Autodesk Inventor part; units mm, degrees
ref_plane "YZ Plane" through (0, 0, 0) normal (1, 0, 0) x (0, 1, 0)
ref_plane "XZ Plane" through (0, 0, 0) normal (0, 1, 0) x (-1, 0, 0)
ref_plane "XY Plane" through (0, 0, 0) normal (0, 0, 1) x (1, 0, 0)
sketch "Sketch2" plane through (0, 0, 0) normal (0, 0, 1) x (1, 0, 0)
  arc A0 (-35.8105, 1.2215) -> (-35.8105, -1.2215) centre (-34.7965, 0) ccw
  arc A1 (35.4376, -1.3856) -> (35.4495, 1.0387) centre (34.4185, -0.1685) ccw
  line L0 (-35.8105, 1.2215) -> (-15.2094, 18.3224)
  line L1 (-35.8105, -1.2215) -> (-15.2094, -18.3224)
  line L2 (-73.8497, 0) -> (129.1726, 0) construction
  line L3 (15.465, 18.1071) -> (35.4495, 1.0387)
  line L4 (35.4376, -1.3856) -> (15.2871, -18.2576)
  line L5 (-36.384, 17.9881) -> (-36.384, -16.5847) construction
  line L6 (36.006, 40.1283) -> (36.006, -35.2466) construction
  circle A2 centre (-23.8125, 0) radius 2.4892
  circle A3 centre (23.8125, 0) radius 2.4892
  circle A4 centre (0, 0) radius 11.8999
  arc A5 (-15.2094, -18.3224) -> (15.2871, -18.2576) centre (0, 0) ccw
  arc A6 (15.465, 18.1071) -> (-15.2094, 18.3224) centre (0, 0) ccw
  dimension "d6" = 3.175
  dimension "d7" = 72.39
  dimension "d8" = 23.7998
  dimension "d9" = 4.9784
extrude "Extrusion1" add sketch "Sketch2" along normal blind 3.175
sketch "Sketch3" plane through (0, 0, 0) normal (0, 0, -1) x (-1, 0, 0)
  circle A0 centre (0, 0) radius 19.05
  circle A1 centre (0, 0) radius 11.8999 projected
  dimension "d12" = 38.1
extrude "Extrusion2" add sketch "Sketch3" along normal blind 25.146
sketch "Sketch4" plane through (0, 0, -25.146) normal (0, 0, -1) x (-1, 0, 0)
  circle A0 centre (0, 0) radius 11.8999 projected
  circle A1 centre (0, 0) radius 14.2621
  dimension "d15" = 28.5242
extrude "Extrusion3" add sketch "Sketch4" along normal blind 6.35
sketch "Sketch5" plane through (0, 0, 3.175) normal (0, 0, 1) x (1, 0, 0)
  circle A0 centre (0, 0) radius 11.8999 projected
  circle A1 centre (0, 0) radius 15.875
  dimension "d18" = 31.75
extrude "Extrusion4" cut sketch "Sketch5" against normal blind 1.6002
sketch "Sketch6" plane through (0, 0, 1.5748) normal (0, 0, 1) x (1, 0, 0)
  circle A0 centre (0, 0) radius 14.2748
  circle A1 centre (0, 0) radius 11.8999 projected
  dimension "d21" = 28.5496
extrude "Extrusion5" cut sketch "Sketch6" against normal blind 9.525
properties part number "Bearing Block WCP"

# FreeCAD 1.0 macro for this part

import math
import FreeCAD as App
import Part
import Sketcher

V = App.Vector
Q = App.Units.Quantity

doc = App.newDocument("Part")
body = doc.addObject("PartDesign::Body", "Body")

# Sketch on XY plane
sketch1 = body.newObject("Sketcher::SketchObject", "Sketch")
sketch1.AttachmentSupport = (doc.getObject("XY_Plane"), [""])
sketch1.MapMode = "FlatFace"
sketch1.addGeometry([
    Part.LineSegment(V(-15.2, 18.3, 0), V(-35.8, 1.2, 0)),  # 0
    Part.ArcOfCircle(Part.Circle(V(-34.8, 0, 0), V(0, 0, 1), 1.6), math.radians(130), math.radians(230)),  # 1
    Part.LineSegment(V(-35.8, -1.2, 0), V(-15.2, -18.3, 0)),  # 2
    Part.ArcOfCircle(Part.Circle(V(0, 0, 0), V(0, 0, 1), 23.8), math.radians(-130), math.radians(-50)),  # 3
    Part.LineSegment(V(15.3, -18.3, 0), V(35.4, -1.4, 0)),  # 4
    Part.ArcOfCircle(Part.Circle(V(34.4, -0.2, 0), V(0, 0, 1), 1.6), math.radians(-50), math.radians(50)),  # 5
    Part.LineSegment(V(35.4, 1, 0), V(15.5, 18.1, 0)),  # 6
    Part.ArcOfCircle(Part.Circle(V(0, 0, 0), V(0, 0, 1), 23.8), math.radians(49), math.radians(130)),  # 7
    Part.Circle(V(-23.8, 0, 0), V(0, 0, 1), 2.5),  # 8
    Part.Circle(V(0, 0, 0), V(0, 0, 1), 11.9),  # 9
    Part.Circle(V(23.8, 0, 0), V(0, 0, 1), 2.5),  # 10
], False)
sketch1.addConstraint([
    Sketcher.Constraint("Tangent", 0, 2, 1, 1),
    Sketcher.Constraint("Tangent", 1, 2, 2, 1),
    Sketcher.Constraint("Tangent", 2, 2, 3, 1),
    Sketcher.Constraint("Tangent", 3, 2, 4, 1),
    Sketcher.Constraint("Tangent", 4, 2, 5, 1),
    Sketcher.Constraint("Tangent", 5, 2, 6, 1),
    Sketcher.Constraint("Tangent", 6, 2, 7, 1),
    Sketcher.Constraint("Tangent", 7, 2, 0, 1),
    Sketcher.Constraint("Coincident", 3, 3, -1, 1),
    Sketcher.Constraint("Coincident", 7, 3, -1, 1),
    Sketcher.Constraint("Coincident", 9, 3, -1, 1),
    Sketcher.Constraint("Equal", 1, 5),
    Sketcher.Constraint("Equal", 3, 7),
    Sketcher.Constraint("Equal", 8, 10),
    Sketcher.Constraint("Symmetric", 8, 3, 10, 3, -1, 1),
    Sketcher.Constraint("PointOnObject", 1, 3, -1),
    Sketcher.Constraint("PointOnObject", 8, 3, -1),
    Sketcher.Constraint("Diameter", 8, Q("0.196 in")),
    Sketcher.Constraint("Diameter", 9, Q("0.937 in")),
    Sketcher.Constraint("Radius", 1, Q("0.0625 in")),
    Sketcher.Constraint("Radius", 3, Q("0.9375 in")),
    Sketcher.Constraint("Angle", 6, Q("139.5 deg")),
    Sketcher.Constraint("Angle", 4, Q("39.9394 deg")),
    Sketcher.Constraint("DistanceX", 8, 3, -1, 1, Q("0.9375 in")),
    Sketcher.Constraint("DistanceX", 1, 3, 5, 3, Q("2.725 in")),
])
pad1 = body.newObject("PartDesign::Pad", "Pad")
pad1.Profile = sketch1
pad1.Length = Q("0.125 in")

# Sketch on XY plane
sketch2 = body.newObject("Sketcher::SketchObject", "Sketch001")
sketch2.AttachmentSupport = (doc.getObject("XY_Plane"), [""])
sketch2.MapMode = "FlatFace"
sketch2.addGeometry([
    Part.Circle(V(0, 0, 0), V(0, 0, 1), 19),
    Part.Circle(V(0, 0, 0), V(0, 0, 1), 12),
], False)
sketch2.addConstraint([
    Sketcher.Constraint("Coincident", 0, 3, -1, 1),
    Sketcher.Constraint("Coincident", 1, 3, -1, 1),
    Sketcher.Constraint("Diameter", 0, Q("1.5 in")),
    Sketcher.Constraint("Diameter", 1, Q("0.937 in")),
])
pad2 = body.newObject("PartDesign::Pad", "Pad001")
pad2.Profile = sketch2
pad2.Length = Q("0.99 in")
pad2.Reversed = True

# Sketch on XY plane
sketch3 = body.newObject("Sketcher::SketchObject", "Sketch002")
sketch3.AttachmentSupport = (doc.getObject("XY_Plane"), [""])
sketch3.MapMode = "FlatFace"
sketch3.AttachmentOffset = App.Placement(V(0, 0, -0.99 * 25.4), App.Rotation())
sketch3.addGeometry([
    Part.Circle(V(0, 0, 0), V(0, 0, 1), 14),
    Part.Circle(V(0, 0, 0), V(0, 0, 1), 12),
], False)
sketch3.addConstraint([
    Sketcher.Constraint("Coincident", 0, 3, -1, 1),
    Sketcher.Constraint("Coincident", 1, 3, -1, 1),
    Sketcher.Constraint("Diameter", 0, Q("1.123 in")),
    Sketcher.Constraint("Diameter", 1, Q("0.937 in")),
])
pad3 = body.newObject("PartDesign::Pad", "Pad002")
pad3.Profile = sketch3
pad3.Length = Q("0.25 in")
pad3.Reversed = True

# Sketch on XY plane
sketch4 = body.newObject("Sketcher::SketchObject", "Sketch003")
sketch4.AttachmentSupport = (doc.getObject("XY_Plane"), [""])
sketch4.MapMode = "FlatFace"
sketch4.AttachmentOffset = App.Placement(V(0, 0, 0.125 * 25.4), App.Rotation())
sketch4.addGeometry([
    Part.Circle(V(0, 0, 0), V(0, 0, 1), 16),
    Part.Circle(V(0, 0, 0), V(0, 0, 1), 12),
], False)
sketch4.addConstraint([
    Sketcher.Constraint("Coincident", 0, 3, -1, 1),
    Sketcher.Constraint("Coincident", 1, 3, -1, 1),
    Sketcher.Constraint("Diameter", 0, Q("1.25 in")),
    Sketcher.Constraint("Diameter", 1, Q("0.937 in")),
])
pocket1 = body.newObject("PartDesign::Pocket", "Pocket")
pocket1.Profile = sketch4
pocket1.Length = Q("0.063 in")

# Sketch on XY plane
sketch5 = body.newObject("Sketcher::SketchObject", "Sketch004")
sketch5.AttachmentSupport = (doc.getObject("XY_Plane"), [""])
sketch5.MapMode = "FlatFace"
sketch5.AttachmentOffset = App.Placement(V(0, 0, 0.062 * 25.4), App.Rotation())
sketch5.addGeometry([
    Part.Circle(V(0, 0, 0), V(0, 0, 1), 14),
    Part.Circle(V(0, 0, 0), V(0, 0, 1), 12),
], False)
sketch5.addConstraint([
    Sketcher.Constraint("Coincident", 0, 3, -1, 1),
    Sketcher.Constraint("Coincident", 1, 3, -1, 1),
    Sketcher.Constraint("Diameter", 0, Q("1.124 in")),
    Sketcher.Constraint("Diameter", 1, Q("0.937 in")),
])
pocket2 = body.newObject("PartDesign::Pocket", "Pocket001")
pocket2.Profile = sketch5
pocket2.Length = Q("0.375 in")

doc.recompute()
